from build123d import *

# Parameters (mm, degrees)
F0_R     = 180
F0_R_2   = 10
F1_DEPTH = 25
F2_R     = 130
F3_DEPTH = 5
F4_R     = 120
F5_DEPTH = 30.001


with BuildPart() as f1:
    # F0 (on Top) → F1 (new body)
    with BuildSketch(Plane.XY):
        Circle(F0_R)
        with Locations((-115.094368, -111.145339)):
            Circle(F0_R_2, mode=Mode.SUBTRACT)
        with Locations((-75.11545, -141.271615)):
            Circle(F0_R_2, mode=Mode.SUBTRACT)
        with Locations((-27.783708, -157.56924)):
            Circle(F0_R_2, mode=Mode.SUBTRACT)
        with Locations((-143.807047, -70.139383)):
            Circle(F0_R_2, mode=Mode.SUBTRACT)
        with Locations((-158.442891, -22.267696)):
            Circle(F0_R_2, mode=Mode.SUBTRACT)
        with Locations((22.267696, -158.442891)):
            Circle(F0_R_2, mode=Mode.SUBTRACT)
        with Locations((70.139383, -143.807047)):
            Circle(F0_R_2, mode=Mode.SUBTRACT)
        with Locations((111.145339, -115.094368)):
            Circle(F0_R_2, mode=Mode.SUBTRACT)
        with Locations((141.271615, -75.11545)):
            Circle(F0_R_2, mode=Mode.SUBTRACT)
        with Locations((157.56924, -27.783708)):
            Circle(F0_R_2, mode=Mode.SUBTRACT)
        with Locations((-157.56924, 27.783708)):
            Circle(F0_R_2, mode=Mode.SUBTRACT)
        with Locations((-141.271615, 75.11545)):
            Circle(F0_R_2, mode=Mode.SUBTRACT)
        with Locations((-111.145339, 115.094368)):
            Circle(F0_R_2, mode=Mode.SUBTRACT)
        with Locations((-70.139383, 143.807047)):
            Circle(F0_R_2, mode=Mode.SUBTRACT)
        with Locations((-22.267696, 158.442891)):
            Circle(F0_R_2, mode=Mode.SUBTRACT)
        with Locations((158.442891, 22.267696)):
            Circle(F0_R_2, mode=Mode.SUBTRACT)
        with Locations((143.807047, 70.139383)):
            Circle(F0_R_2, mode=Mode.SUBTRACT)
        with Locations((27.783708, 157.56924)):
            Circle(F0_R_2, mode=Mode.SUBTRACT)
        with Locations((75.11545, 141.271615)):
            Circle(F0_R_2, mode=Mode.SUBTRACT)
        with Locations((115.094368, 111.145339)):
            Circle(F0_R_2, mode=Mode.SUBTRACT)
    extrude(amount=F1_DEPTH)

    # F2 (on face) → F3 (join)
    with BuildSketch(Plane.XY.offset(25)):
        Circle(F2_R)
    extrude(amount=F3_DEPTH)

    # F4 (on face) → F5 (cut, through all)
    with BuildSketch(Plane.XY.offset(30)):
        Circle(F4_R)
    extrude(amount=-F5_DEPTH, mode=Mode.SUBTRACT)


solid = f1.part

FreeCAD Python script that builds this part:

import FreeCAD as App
import Part
import Sketcher

V = App.Vector
Q = App.Units.Quantity

doc = App.newDocument("Part")
params = doc.addObject("Spreadsheet::Sheet", "Params")
for row, (alias, value) in enumerate([
    ("sketch1_diameter", "360 mm"),
    ("sketch1_diameter2", "20 mm"),
    ("pad1_length", "25 mm"),
    ("sketch2_diameter", "260 mm"),
    ("pad2_length", "5 mm"),
    ("sketch3_diameter", "240 mm"),
], start=1):
    params.set(f"A{row}", alias)
    params.set(f"B{row}", "=" + value)
    params.setAlias(f"B{row}", alias)

body = doc.addObject("PartDesign::Body", "Body")

sketch1 = doc.addObject("Sketcher::SketchObject", "Sketch")
body.addObject(sketch1)
sketch1.AttachmentSupport = (doc.XY_Plane, [""])
sketch1.MapMode = "FlatFace"
sketch1.addGeometry(Part.Circle(V(0, 0, 0), V(0, 0, 1), 180), False)
sketch1.addGeometry(Part.Circle(V(-115.094368, -111.145339, 0), V(0, 0, 1), 10), False)
sketch1.addGeometry(Part.Circle(V(-75.11545, -141.271615, 0), V(0, 0, 1), 10), False)
sketch1.addGeometry(Part.Circle(V(-27.783708, -157.56924, 0), V(0, 0, 1), 10), False)
sketch1.addGeometry(Part.Circle(V(-143.807047, -70.139383, 0), V(0, 0, 1), 10), False)
sketch1.addGeometry(Part.Circle(V(-158.442891, -22.267696, 0), V(0, 0, 1), 10), False)
sketch1.addGeometry(Part.Circle(V(22.267696, -158.442891, 0), V(0, 0, 1), 10), False)
sketch1.addGeometry(Part.Circle(V(70.139383, -143.807047, 0), V(0, 0, 1), 10), False)
sketch1.addGeometry(Part.Circle(V(111.145339, -115.094368, 0), V(0, 0, 1), 10), False)
sketch1.addGeometry(Part.Circle(V(141.271615, -75.11545, 0), V(0, 0, 1), 10), False)
sketch1.addGeometry(Part.Circle(V(157.56924, -27.783708, 0), V(0, 0, 1), 10), False)
sketch1.addGeometry(Part.Circle(V(-157.56924, 27.783708, 0), V(0, 0, 1), 10), False)
sketch1.addGeometry(Part.Circle(V(-141.271615, 75.11545, 0), V(0, 0, 1), 10), False)
sketch1.addGeometry(Part.Circle(V(-111.145339, 115.094368, 0), V(0, 0, 1), 10), False)
sketch1.addGeometry(Part.Circle(V(-70.139383, 143.807047, 0), V(0, 0, 1), 10), False)
sketch1.addGeometry(Part.Circle(V(-22.267696, 158.442891, 0), V(0, 0, 1), 10), False)
sketch1.addGeometry(Part.Circle(V(158.442891, 22.267696, 0), V(0, 0, 1), 10), False)
sketch1.addGeometry(Part.Circle(V(143.807047, 70.139383, 0), V(0, 0, 1), 10), False)
sketch1.addGeometry(Part.Circle(V(27.783708, 157.56924, 0), V(0, 0, 1), 10), False)
sketch1.addGeometry(Part.Circle(V(75.11545, 141.271615, 0), V(0, 0, 1), 10), False)
sketch1.addGeometry(Part.Circle(V(115.094368, 111.145339, 0), V(0, 0, 1), 10), False)
sketch1.addConstraint(Sketcher.Constraint("Coincident", 0, 3, -1, 1))
sketch1.addConstraint(Sketcher.Constraint("Equal", 1, 2))
sketch1.addConstraint(Sketcher.Constraint("Equal", 2, 3))
sketch1.addConstraint(Sketcher.Constraint("Equal", 3, 4))
sketch1.addConstraint(Sketcher.Constraint("Equal", 4, 5))
sketch1.addConstraint(Sketcher.Constraint("Equal", 5, 6))
sketch1.addConstraint(Sketcher.Constraint("Equal", 6, 7))
sketch1.addConstraint(Sketcher.Constraint("Equal", 7, 8))
sketch1.addConstraint(Sketcher.Constraint("Equal", 8, 9))
sketch1.addConstraint(Sketcher.Constraint("Equal", 9, 10))
sketch1.addConstraint(Sketcher.Constraint("Equal", 10, 11))
sketch1.addConstraint(Sketcher.Constraint("Equal", 11, 12))
sketch1.addConstraint(Sketcher.Constraint("Equal", 12, 13))
sketch1.addConstraint(Sketcher.Constraint("Equal", 13, 14))
sketch1.addConstraint(Sketcher.Constraint("Equal", 14, 15))
sketch1.addConstraint(Sketcher.Constraint("Equal", 15, 16))
sketch1.addConstraint(Sketcher.Constraint("Equal", 16, 17))
sketch1.addConstraint(Sketcher.Constraint("Equal", 17, 18))
sketch1.addConstraint(Sketcher.Constraint("Equal", 18, 19))
sketch1.addConstraint(Sketcher.Constraint("Equal", 19, 20))
sketch1.addConstraint(Sketcher.Constraint("Symmetric", 10, 3, 11, 3, -1, 1))
sketch1.addConstraint(Sketcher.Constraint("Symmetric", 9, 3, 12, 3, -1, 1))
sketch1.addConstraint(Sketcher.Constraint("Symmetric", 8, 3, 13, 3, -1, 1))
sketch1.addConstraint(Sketcher.Constraint("Symmetric", 7, 3, 14, 3, -1, 1))
sketch1.addConstraint(Sketcher.Constraint("Symmetric", 6, 3, 15, 3, -1, 1))
sketch1.addConstraint(Sketcher.Constraint("Symmetric", 5, 3, 16, 3, -1, 1))
sketch1.addConstraint(Sketcher.Constraint("Symmetric", 4, 3, 17, 3, -1, 1))
sketch1.addConstraint(Sketcher.Constraint("Symmetric", 3, 3, 18, 3, -1, 1))
sketch1.addConstraint(Sketcher.Constraint("Symmetric", 2, 3, 19, 3, -1, 1))
sketch1.addConstraint(Sketcher.Constraint("Symmetric", 1, 3, 20, 3, -1, 1))
sketch1.addConstraint(Sketcher.Constraint("Diameter", 0, Q("360 mm")))
sketch1.addConstraint(Sketcher.Constraint("Diameter", 1, Q("20 mm")))
sketch1.addConstraint(Sketcher.Constraint("DistanceY", 3, 3, 1, 3, Q("46.423901 mm")))
sketch1.addConstraint(Sketcher.Constraint("DistanceX", 8, 3, 10, 3, Q("46.423901 mm")))
sketch1.addConstraint(Sketcher.Constraint("DistanceX", 1, 3, -1, 1, Q("115.094368 mm")))
sketch1.addConstraint(Sketcher.Constraint("DistanceY", 1, 3, -1, 1, Q("111.145339 mm")))
sketch1.addConstraint(Sketcher.Constraint("DistanceX", 2, 3, -1, 1, Q("75.11545 mm")))
sketch1.addConstraint(Sketcher.Constraint("DistanceX", 3, 3, -1, 1, Q("27.783708 mm")))
sketch1.addConstraint(Sketcher.Constraint("DistanceX", 5, 3, -1, 1, Q("158.442891 mm")))
sketch1.addConstraint(Sketcher.Constraint("DistanceY", 6, 3, -1, 1, Q("158.442891 mm")))
sketch1.addConstraint(Sketcher.Constraint("DistanceX", -1, 1, 8, 3, Q("111.145339 mm")))
sketch1.addConstraint(Sketcher.Constraint("DistanceY", 8, 3, -1, 1, Q("115.094368 mm")))
sketch1.addConstraint(Sketcher.Constraint("DistanceY", 9, 3, -1, 1, Q("75.11545 mm")))
sketch1.addConstraint(Sketcher.Constraint("DistanceY", 10, 3, -1, 1, Q("27.783708 mm")))
sketch1.addConstraint(Sketcher.Constraint("DistanceX", 4, 3, 1, 3, Q("28.712679 mm")))
sketch1.addConstraint(Sketcher.Constraint("DistanceY", 2, 3, 4, 3, Q("71.132232 mm")))
sketch1.addConstraint(Sketcher.Constraint("DistanceY", 2, 3, 5, 3, Q("119.003919 mm")))
sketch1.addConstraint(Sketcher.Constraint("DistanceY", 6, 3, 4, 3, Q("88.303508 mm")))
sketch1.addConstraint(Sketcher.Constraint("DistanceX", 3, 3, 7, 3, Q("97.923091 mm")))
sketch1.addConstraint(Sketcher.Constraint("DistanceY", 7, 3, 1, 3, Q("32.661708 mm")))
sketch1.addConstraint(Sketcher.Constraint("DistanceX", 7, 3, 9, 3, Q("71.132232 mm")))
sketch1.addConstraint(Sketcher.Constraint("DistanceX", 6, 3, 9, 3, Q("119.003919 mm")))
sketch1.setExpression("Constraints[30]", "Params.sketch1_diameter")
sketch1.setExpression("Constraints[31]", "Params.sketch1_diameter2")
pad1 = doc.addObject("PartDesign::Pad", "Pad")
body.addObject(pad1)
pad1.Profile = sketch1
pad1.setExpression("Length", "Params.pad1_length")

sketch2 = doc.addObject("Sketcher::SketchObject", "Sketch001")
body.addObject(sketch2)
sketch2.AttachmentSupport = (doc.XY_Plane, [""])
sketch2.MapMode = "FlatFace"
sketch2.AttachmentOffset = App.Placement(V(0, 0, 25), App.Rotation())
sketch2.addGeometry(Part.Circle(V(0, 0, 0), V(0, 0, 1), 130), False)
sketch2.addConstraint(Sketcher.Constraint("Coincident", 0, 3, -1, 1))
sketch2.addConstraint(Sketcher.Constraint("Diameter", 0, Q("260 mm")))
sketch2.setExpression("Constraints[1]", "Params.sketch2_diameter")
pad2 = doc.addObject("PartDesign::Pad", "Pad001")
body.addObject(pad2)
pad2.Profile = sketch2
pad2.setExpression("Length", "Params.pad2_length")

sketch3 = doc.addObject("Sketcher::SketchObject", "Sketch002")
body.addObject(sketch3)
sketch3.AttachmentSupport = (doc.XY_Plane, [""])
sketch3.MapMode = "FlatFace"
sketch3.AttachmentOffset = App.Placement(V(0, 0, 30), App.Rotation())
sketch3.addGeometry(Part.Circle(V(0, 0, 0), V(0, 0, 1), 120), False)
sketch3.addConstraint(Sketcher.Constraint("Coincident", 0, 3, -1, 1))
sketch3.addConstraint(Sketcher.Constraint("Diameter", 0, Q("240 mm")))
sketch3.setExpression("Constraints[1]", "Params.sketch3_diameter")
pocket1 = doc.addObject("PartDesign::Pocket", "Pocket")
body.addObject(pocket1)
pocket1.Profile = sketch3
pocket1.Type = "ThroughAll"

doc.recompute()
